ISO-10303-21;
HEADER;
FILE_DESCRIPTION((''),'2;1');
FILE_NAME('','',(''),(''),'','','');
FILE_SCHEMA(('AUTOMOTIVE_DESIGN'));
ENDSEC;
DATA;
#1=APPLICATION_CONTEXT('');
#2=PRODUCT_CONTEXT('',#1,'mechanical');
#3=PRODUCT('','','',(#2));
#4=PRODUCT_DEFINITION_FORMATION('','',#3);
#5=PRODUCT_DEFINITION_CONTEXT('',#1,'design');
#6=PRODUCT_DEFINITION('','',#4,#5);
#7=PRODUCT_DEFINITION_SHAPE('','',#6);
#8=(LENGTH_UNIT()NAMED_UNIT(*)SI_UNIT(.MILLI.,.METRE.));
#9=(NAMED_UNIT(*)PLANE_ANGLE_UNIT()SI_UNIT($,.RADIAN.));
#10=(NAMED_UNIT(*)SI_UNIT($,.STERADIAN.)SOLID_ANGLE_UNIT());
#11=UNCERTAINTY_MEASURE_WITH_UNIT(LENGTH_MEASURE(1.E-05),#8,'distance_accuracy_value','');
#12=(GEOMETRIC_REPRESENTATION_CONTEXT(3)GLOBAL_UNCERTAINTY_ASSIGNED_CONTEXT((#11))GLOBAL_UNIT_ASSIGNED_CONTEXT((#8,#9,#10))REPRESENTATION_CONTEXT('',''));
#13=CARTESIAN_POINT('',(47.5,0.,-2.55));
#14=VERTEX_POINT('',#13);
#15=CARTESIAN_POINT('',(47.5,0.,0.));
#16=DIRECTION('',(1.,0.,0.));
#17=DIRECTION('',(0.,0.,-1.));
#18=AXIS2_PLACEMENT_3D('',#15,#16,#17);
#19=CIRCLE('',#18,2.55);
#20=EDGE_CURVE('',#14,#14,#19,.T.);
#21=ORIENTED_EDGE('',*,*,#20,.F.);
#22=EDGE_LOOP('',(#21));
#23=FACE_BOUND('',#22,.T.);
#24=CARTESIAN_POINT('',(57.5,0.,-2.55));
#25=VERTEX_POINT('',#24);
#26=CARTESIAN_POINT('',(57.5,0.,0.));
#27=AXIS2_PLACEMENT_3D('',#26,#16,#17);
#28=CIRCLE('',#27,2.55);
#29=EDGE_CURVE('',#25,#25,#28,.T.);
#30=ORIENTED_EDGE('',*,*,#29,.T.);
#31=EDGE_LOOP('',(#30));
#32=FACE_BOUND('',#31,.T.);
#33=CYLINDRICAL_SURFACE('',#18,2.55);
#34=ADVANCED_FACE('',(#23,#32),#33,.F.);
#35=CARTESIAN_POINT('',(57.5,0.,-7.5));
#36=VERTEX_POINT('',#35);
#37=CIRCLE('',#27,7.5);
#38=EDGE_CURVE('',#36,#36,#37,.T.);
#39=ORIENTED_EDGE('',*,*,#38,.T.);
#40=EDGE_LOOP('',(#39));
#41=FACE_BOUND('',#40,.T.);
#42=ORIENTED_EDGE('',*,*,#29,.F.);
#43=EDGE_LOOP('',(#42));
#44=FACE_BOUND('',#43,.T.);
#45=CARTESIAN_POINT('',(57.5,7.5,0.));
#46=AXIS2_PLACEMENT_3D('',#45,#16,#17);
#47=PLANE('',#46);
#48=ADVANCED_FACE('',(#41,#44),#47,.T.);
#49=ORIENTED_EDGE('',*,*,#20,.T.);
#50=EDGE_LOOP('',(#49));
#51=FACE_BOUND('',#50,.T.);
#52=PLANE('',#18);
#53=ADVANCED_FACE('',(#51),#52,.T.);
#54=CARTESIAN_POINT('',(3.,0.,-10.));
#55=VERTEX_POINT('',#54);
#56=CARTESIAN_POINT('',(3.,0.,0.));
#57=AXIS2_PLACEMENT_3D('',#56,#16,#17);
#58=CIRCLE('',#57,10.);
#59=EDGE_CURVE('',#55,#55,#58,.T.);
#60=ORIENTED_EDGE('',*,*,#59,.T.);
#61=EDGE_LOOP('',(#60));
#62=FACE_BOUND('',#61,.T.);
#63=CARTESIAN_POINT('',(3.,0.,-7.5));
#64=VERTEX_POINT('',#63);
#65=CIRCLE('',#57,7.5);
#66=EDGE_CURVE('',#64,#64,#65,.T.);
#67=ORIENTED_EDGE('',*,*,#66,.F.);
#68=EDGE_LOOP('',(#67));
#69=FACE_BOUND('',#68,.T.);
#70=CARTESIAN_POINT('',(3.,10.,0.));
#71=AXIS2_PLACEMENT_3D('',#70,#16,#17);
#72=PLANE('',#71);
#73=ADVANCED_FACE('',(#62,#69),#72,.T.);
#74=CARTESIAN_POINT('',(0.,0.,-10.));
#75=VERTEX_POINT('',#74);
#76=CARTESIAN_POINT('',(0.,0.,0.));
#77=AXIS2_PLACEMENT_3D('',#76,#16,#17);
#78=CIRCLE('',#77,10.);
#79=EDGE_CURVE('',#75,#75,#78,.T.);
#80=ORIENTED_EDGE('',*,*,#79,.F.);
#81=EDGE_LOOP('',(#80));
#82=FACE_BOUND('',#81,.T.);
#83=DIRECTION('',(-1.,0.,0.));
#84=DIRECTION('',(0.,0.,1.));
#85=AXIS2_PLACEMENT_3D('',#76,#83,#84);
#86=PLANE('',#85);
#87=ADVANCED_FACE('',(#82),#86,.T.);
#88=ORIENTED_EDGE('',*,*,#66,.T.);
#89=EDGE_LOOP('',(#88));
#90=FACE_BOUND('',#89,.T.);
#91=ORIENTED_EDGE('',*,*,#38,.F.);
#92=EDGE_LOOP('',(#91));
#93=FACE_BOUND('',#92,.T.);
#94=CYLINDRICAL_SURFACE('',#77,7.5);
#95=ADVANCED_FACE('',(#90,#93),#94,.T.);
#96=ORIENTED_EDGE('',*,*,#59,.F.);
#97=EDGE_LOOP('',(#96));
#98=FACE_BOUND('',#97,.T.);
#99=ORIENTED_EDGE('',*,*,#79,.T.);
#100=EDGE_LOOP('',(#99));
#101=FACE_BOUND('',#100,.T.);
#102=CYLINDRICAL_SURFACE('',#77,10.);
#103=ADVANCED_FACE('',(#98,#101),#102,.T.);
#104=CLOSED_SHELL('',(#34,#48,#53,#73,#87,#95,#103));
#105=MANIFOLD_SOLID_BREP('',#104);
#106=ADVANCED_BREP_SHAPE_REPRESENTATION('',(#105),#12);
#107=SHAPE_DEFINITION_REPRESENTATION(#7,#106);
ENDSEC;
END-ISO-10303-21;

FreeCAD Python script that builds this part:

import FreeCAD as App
import Part
import Sketcher


def add_polygon(sketch, points):
    """Adds a closed chain of lines whose ends are joined by coincident constraints."""
    first, n = sketch.GeometryCount, len(points)
    for a, b in zip(points, points[1:] + points[:1]):
        sketch.addGeometry(Part.LineSegment(App.Vector(*a, 0), App.Vector(*b, 0)), False)
    for i in range(n):
        sketch.addConstraint(Sketcher.Constraint("Coincident", first + i, 2, first + (i + 1) % n, 1))

doc = App.newDocument("Part")
body = doc.addObject("PartDesign::Body", "Body")

# Sketch on XY plane
sketch1 = doc.addObject("Sketcher::SketchObject", "Sketch")
body.addObject(sketch1)
sketch1.AttachmentSupport = (doc.XY_Plane, [""])
sketch1.MapMode = "FlatFace"
add_polygon(sketch1, [(0, 10), (0, 0), (57.5, 0), (57.5, 7.5), (3, 7.5), (3, 10)])  # lines 0-5
sketch1.addConstraint([
    Sketcher.Constraint("Vertical", 0),
    Sketcher.Constraint("Horizontal", 1),
    Sketcher.Constraint("Vertical", 2),
    Sketcher.Constraint("Horizontal", 3),
    Sketcher.Constraint("Vertical", 4),
    Sketcher.Constraint("Horizontal", 5),
    Sketcher.Constraint("Coincident", 0, 2, -1, 1),
    Sketcher.Constraint("DistanceX", 5, 2, 5, 1, 3.0),
    Sketcher.Constraint("DistanceY", 0, 2, 0, 1, 10.0),
    Sketcher.Constraint("DistanceX", 1, 1, 1, 2, 57.5),
    Sketcher.Constraint("DistanceY", 2, 1, 2, 2, 7.5),
])
revolution = doc.addObject("PartDesign::Revolution", "Revolution")
body.addObject(revolution)
revolution.Profile = sketch1
revolution.ReferenceAxis = (sketch1, ["H_Axis"])
revolution.Angle = 360

# Sketch on YZ plane
sketch2 = doc.addObject("Sketcher::SketchObject", "Sketch001")
body.addObject(sketch2)
sketch2.AttachmentSupport = (doc.YZ_Plane, [""])
sketch2.MapMode = "FlatFace"
sketch2.AttachmentOffset = App.Placement(App.Vector(0, 0, 57.5), App.Rotation())
sketch2.addGeometry(Part.Circle(App.Vector(0, 0, 0), App.Vector(0, 0, 1), 2.5), False)
sketch2.addConstraint([
    Sketcher.Constraint("Coincident", 0, 3, -1, 1),
    Sketcher.Constraint("Diameter", 0, 5.1),
])
pocket1 = doc.addObject("PartDesign::Pocket", "Pocket")
body.addObject(pocket1)
pocket1.Profile = sketch2
pocket1.Length = 10

doc.recompute()
